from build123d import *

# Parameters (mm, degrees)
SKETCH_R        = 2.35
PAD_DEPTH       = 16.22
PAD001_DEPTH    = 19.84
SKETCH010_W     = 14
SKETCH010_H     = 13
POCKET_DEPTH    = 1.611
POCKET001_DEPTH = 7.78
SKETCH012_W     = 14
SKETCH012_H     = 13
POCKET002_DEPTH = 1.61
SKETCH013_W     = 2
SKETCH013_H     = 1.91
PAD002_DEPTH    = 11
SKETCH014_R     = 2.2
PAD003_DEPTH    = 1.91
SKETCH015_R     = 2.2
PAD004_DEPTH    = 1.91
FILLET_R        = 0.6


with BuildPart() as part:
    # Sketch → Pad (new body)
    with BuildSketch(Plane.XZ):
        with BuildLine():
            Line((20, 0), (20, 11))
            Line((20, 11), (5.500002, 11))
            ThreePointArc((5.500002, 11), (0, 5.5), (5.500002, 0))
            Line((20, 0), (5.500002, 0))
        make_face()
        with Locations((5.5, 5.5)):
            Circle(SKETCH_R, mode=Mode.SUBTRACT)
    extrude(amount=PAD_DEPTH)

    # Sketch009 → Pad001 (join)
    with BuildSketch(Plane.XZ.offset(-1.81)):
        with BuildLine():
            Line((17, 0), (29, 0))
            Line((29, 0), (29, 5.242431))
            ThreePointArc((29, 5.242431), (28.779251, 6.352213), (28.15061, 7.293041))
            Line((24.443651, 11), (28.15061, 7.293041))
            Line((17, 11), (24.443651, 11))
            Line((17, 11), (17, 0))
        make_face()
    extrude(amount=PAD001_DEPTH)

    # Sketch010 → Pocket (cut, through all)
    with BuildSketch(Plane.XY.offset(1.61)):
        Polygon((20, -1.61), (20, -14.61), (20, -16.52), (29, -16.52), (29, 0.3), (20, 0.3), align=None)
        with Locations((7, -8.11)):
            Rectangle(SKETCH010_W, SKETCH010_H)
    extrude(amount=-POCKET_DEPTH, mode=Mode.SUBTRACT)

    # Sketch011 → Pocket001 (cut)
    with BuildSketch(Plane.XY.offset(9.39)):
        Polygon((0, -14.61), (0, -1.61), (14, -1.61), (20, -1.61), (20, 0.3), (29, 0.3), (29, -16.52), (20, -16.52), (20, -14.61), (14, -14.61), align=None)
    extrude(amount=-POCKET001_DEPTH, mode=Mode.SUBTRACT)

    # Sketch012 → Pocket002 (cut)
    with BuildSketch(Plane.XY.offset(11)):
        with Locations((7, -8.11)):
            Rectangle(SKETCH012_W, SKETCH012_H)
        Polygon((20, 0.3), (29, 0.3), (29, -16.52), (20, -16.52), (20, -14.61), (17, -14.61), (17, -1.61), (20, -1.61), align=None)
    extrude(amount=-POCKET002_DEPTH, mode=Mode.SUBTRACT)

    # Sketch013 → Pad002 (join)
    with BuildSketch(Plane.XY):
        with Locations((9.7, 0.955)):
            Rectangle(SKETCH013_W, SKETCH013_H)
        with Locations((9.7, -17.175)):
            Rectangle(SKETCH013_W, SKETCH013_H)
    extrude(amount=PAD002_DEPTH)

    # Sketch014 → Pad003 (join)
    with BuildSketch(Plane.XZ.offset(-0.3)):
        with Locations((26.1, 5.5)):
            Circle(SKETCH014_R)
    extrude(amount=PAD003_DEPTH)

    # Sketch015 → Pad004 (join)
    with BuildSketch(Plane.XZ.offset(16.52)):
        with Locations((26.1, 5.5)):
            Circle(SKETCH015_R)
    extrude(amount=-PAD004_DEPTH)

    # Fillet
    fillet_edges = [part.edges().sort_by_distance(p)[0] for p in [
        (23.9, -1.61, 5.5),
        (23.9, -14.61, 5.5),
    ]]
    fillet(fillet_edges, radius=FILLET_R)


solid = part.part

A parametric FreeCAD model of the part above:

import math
import FreeCAD as App
import Part
import Sketcher

V = App.Vector
Q = App.Units.Quantity


def edges_at(feature, points):
    """Names of the edges that pass closest to the given points."""
    edges = feature.Shape.Edges
    near = lambda p: min(range(len(edges)), key=lambda i: edges[i].distToShape(Part.Vertex(*p))[0])
    return sorted({f"Edge{near(p) + 1}" for p in points})

doc = App.newDocument("Part")
body = doc.addObject("PartDesign::Body", "Body")

# Sketch on XZ plane
sketch1 = body.newObject("Sketcher::SketchObject", "Sketch")
sketch1.AttachmentSupport = (doc.getObject("XZ_Plane"), [""])
sketch1.MapMode = "FlatFace"
sketch1.addGeometry([
    Part.LineSegment(V(20, 0, 0), V(20, 11, 0)),  # 0
    Part.LineSegment(V(20, 11, 0), V(5.500002, 11, 0)),  # 1
    Part.ArcOfCircle(Part.Circle(V(5.5, 5.5, 0), V(0, 0, 1), 5.5), math.radians(89.999979), math.radians(270.000021)),  # 2
    Part.LineSegment(V(5.500002, 0, 0), V(20, 0, 0)),  # 3
    Part.Circle(V(5.5, 5.5, 0), V(0, 0, 1), 2.35),  # 4
], False)
sketch1.addConstraint([
    Sketcher.Constraint("Coincident", 0, 2, 1, 1),
    Sketcher.Constraint("Tangent", 1, 2, 2, 1),
    Sketcher.Constraint("Tangent", 2, 2, 3, 1),
    Sketcher.Constraint("Coincident", 3, 2, 0, 1),
    Sketcher.Constraint("Vertical", 0),
    Sketcher.Constraint("Horizontal", 1),
    Sketcher.Constraint("Horizontal", 3),
    Sketcher.Constraint("Coincident", 4, 3, 2, 3),
    Sketcher.Constraint("PointOnObject", 2, 2, -1),
    Sketcher.Constraint("Diameter", 4, 4.7),
    Sketcher.Constraint("Radius", 2, 5.5),
    Sketcher.Constraint("DistanceX", -1, 1, 0, 2, 20.0),
    Sketcher.Constraint("DistanceX", -1, 1, 2, 3, 5.5),
])
pad1 = body.newObject("PartDesign::Pad", "Pad")
pad1.Profile = sketch1
pad1.Length = 16.22

# Sketch on XZ plane
sketch2 = body.newObject("Sketcher::SketchObject", "Sketch001")
sketch2.AttachmentSupport = (doc.getObject("XZ_Plane"), [""])
sketch2.MapMode = "FlatFace"
sketch2.AttachmentOffset = App.Placement(V(0, 0, -1.81), App.Rotation())
sketch2.addGeometry([
    Part.LineSegment(V(17, 0, 0), V(29, 0, 0)),  # 0
    Part.LineSegment(V(29, 0, 0), V(29, 5.242431, 0)),  # 1
    Part.ArcOfCircle(Part.Circle(V(26.100001, 5.242432, 0), V(0, 0, 1), 2.899999), math.radians(-0.000022), math.radians(45)),  # 2
    Part.LineSegment(V(28.15061, 7.293041, 0), V(24.443651, 11, 0)),  # 3
    Part.LineSegment(V(24.443651, 11, 0), V(17, 11, 0)),  # 4
    Part.LineSegment(V(17, 11, 0), V(17, 0, 0)),  # 5
], False)
sketch2.addConstraint([
    Sketcher.Constraint("Coincident", 0, 2, 1, 1),
    Sketcher.Constraint("Tangent", 1, 2, 2, 1),
    Sketcher.Constraint("Tangent", 2, 2, 3, 1),
    Sketcher.Constraint("Coincident", 3, 2, 4, 1),
    Sketcher.Constraint("Coincident", 4, 2, 5, 1),
    Sketcher.Constraint("Coincident", 5, 2, 0, 1),
    Sketcher.Constraint("Horizontal", 0),
    Sketcher.Constraint("Vertical", 1),
    Sketcher.Constraint("Horizontal", 4),
    Sketcher.Constraint("Vertical", 5),
    Sketcher.Constraint("PointOnObject", 0, 2, -1),
    Sketcher.Constraint("Radius", 2, 2.899999),
    Sketcher.Constraint("DistanceX", 0, 1, 0, 2, 12.0),
    Sketcher.Constraint("DistanceY", 5, 2, 5, 1, 11.0),
    Sketcher.Constraint("Angle", 3, Q("135 deg")),
    Sketcher.Constraint("DistanceX", -1, 1, 0, 2, 29.0),
    Sketcher.Constraint("DistanceX", 4, 2, 4, 1, 7.443651),
])
pad2 = body.newObject("PartDesign::Pad", "Pad001")
pad2.Profile = sketch2
pad2.Length = 19.84

# Sketch on XY plane
sketch3 = body.newObject("Sketcher::SketchObject", "Sketch002")
sketch3.AttachmentSupport = (doc.getObject("XY_Plane"), [""])
sketch3.MapMode = "FlatFace"
sketch3.AttachmentOffset = App.Placement(V(0, 0, 1.61), App.Rotation())
sketch3.addGeometry([
    Part.LineSegment(V(20, -16.52, 0), V(29, -16.52, 0)),  # 0
    Part.LineSegment(V(29, -16.52, 0), V(29, 0.3, 0)),  # 1
    Part.LineSegment(V(29, 0.3, 0), V(20, 0.3, 0)),  # 2
    Part.LineSegment(V(20, 0.3, 0), V(20, -16.52, 0)),  # 3
    Part.LineSegment(V(0, -1.61, 0), V(0, -14.61, 0)),  # 4
    Part.LineSegment(V(0, -14.61, 0), V(14, -14.61, 0)),  # 5
    Part.LineSegment(V(14, -14.61, 0), V(14, -1.61, 0)),  # 6
    Part.LineSegment(V(14, -1.61, 0), V(0, -1.61, 0)),  # 7
], False)
sketch3.addConstraint([
    Sketcher.Constraint("Coincident", 0, 2, 1, 1),
    Sketcher.Constraint("Coincident", 1, 2, 2, 1),
    Sketcher.Constraint("Coincident", 2, 2, 3, 1),
    Sketcher.Constraint("Coincident", 3, 2, 0, 1),
    Sketcher.Constraint("Coincident", 4, 2, 5, 1),
    Sketcher.Constraint("Coincident", 5, 2, 6, 1),
    Sketcher.Constraint("Coincident", 6, 2, 7, 1),
    Sketcher.Constraint("Coincident", 7, 2, 4, 1),
    Sketcher.Constraint("Horizontal", 0),
    Sketcher.Constraint("Vertical", 1),
    Sketcher.Constraint("Horizontal", 2),
    Sketcher.Constraint("Vertical", 3),
    Sketcher.Constraint("Vertical", 4),
    Sketcher.Constraint("Horizontal", 5),
    Sketcher.Constraint("Vertical", 6),
    Sketcher.Constraint("Horizontal", 7),
    Sketcher.Constraint("PointOnObject", 4, 2, -2),
    Sketcher.Constraint("DistanceX", 0, 1, 0, 2, 9.0),
    Sketcher.Constraint("DistanceX", 5, 1, 5, 2, 14.0),
    Sketcher.Constraint("DistanceY", 4, 2, 4, 1, 13.0),
    Sketcher.Constraint("DistanceX", -1, 1, 0, 2, 29.0),
    Sketcher.Constraint("DistanceY", 1, 1, 1, 2, 16.82),
    Sketcher.Constraint("DistanceY", -1, 1, 1, 2, 0.3),
    Sketcher.Constraint("DistanceY", 4, 2, -1, 1, 14.61),
])
pocket1 = body.newObject("PartDesign::Pocket", "Pocket")
pocket1.Profile = sketch3
pocket1.Type = "ThroughAll"

# Sketch on XY plane
sketch4 = body.newObject("Sketcher::SketchObject", "Sketch003")
sketch4.AttachmentSupport = (doc.getObject("XY_Plane"), [""])
sketch4.MapMode = "FlatFace"
sketch4.AttachmentOffset = App.Placement(V(0, 0, 9.39), App.Rotation())
sketch4.addGeometry([
    Part.LineSegment(V(0, -1.61, 0), V(0, -14.61, 0)),  # 0
    Part.LineSegment(V(0, -14.61, 0), V(20, -14.61, 0)),  # 1
    Part.LineSegment(V(20, -14.61, 0), V(20, -16.52, 0)),  # 2
    Part.LineSegment(V(20, -16.52, 0), V(29, -16.52, 0)),  # 3
    Part.LineSegment(V(29, -16.52, 0), V(29, 0.3, 0)),  # 4
    Part.LineSegment(V(29, 0.3, 0), V(20, 0.3, 0)),  # 5
    Part.LineSegment(V(20, 0.3, 0), V(20, -1.61, 0)),  # 6
    Part.LineSegment(V(20, -1.61, 0), V(0, -1.61, 0)),  # 7
], False)
sketch4.addConstraint([
    Sketcher.Constraint("Coincident", 0, 2, 1, 1),
    Sketcher.Constraint("Coincident", 1, 2, 2, 1),
    Sketcher.Constraint("Coincident", 2, 2, 3, 1),
    Sketcher.Constraint("Coincident", 3, 2, 4, 1),
    Sketcher.Constraint("Coincident", 4, 2, 5, 1),
    Sketcher.Constraint("Coincident", 5, 2, 6, 1),
    Sketcher.Constraint("Coincident", 6, 2, 7, 1),
    Sketcher.Constraint("Coincident", 7, 2, 0, 1),
    Sketcher.Constraint("Vertical", 0),
    Sketcher.Constraint("Horizontal", 1),
    Sketcher.Constraint("Vertical", 2),
    Sketcher.Constraint("Horizontal", 3),
    Sketcher.Constraint("Vertical", 4),
    Sketcher.Constraint("Horizontal", 5),
    Sketcher.Constraint("Vertical", 6),
    Sketcher.Constraint("Horizontal", 7),
    Sketcher.Constraint("PointOnObject", 0, 2, -2),
    Sketcher.Constraint("Vertical", 2, 2, 5, 2),
    Sketcher.Constraint("Equal", 2, 6),
    Sketcher.Constraint("DistanceX", 1, 1, 1, 2, 20.0),
    Sketcher.Constraint("DistanceX", 3, 1, 3, 2, 9.0),
    Sketcher.Constraint("DistanceY", 0, 2, 0, 1, 13.0),
    Sketcher.Constraint("DistanceY", 2, 2, 2, 1, 1.91),
    Sketcher.Constraint("DistanceY", -1, 1, 4, 2, 0.3),
])
pocket2 = body.newObject("PartDesign::Pocket", "Pocket001")
pocket2.Profile = sketch4
pocket2.Length = 7.78

# Sketch on XY plane
sketch5 = body.newObject("Sketcher::SketchObject", "Sketch004")
sketch5.AttachmentSupport = (doc.getObject("XY_Plane"), [""])
sketch5.MapMode = "FlatFace"
sketch5.AttachmentOffset = App.Placement(V(0, 0, 11), App.Rotation())
sketch5.addGeometry([
    Part.LineSegment(V(0, -1.61, 0), V(0, -14.61, 0)),  # 0
    Part.LineSegment(V(0, -14.61, 0), V(14, -14.61, 0)),  # 1
    Part.LineSegment(V(14, -14.61, 0), V(14, -1.61, 0)),  # 2
    Part.LineSegment(V(14, -1.61, 0), V(0, -1.61, 0)),  # 3
    Part.LineSegment(V(29, 0.3, 0), V(20, 0.3, 0)),  # 4
    Part.LineSegment(V(20, 0.3, 0), V(20, -1.61, 0)),  # 5
    Part.LineSegment(V(20, -1.61, 0), V(17, -1.61, 0)),  # 6
    Part.LineSegment(V(17, -1.61, 0), V(17, -14.61, 0)),  # 7
    Part.LineSegment(V(17, -14.61, 0), V(20, -14.61, 0)),  # 8
    Part.LineSegment(V(20, -14.61, 0), V(20, -16.52, 0)),  # 9
    Part.LineSegment(V(20, -16.52, 0), V(29, -16.52, 0)),  # 10
    Part.LineSegment(V(29, -16.52, 0), V(29, 0.3, 0)),  # 11
], False)
sketch5.addConstraint([
    Sketcher.Constraint("Coincident", 0, 2, 1, 1),
    Sketcher.Constraint("Coincident", 1, 2, 2, 1),
    Sketcher.Constraint("Coincident", 2, 2, 3, 1),
    Sketcher.Constraint("Coincident", 3, 2, 0, 1),
    Sketcher.Constraint("Coincident", 4, 2, 5, 1),
    Sketcher.Constraint("Coincident", 5, 2, 6, 1),
    Sketcher.Constraint("Coincident", 6, 2, 7, 1),
    Sketcher.Constraint("Coincident", 7, 2, 8, 1),
    Sketcher.Constraint("Coincident", 8, 2, 9, 1),
    Sketcher.Constraint("Coincident", 9, 2, 10, 1),
    Sketcher.Constraint("Coincident", 10, 2, 11, 1),
    Sketcher.Constraint("Coincident", 11, 2, 4, 1),
    Sketcher.Constraint("Vertical", 0),
    Sketcher.Constraint("Horizontal", 1),
    Sketcher.Constraint("Vertical", 2),
    Sketcher.Constraint("Horizontal", 3),
    Sketcher.Constraint("Horizontal", 4),
    Sketcher.Constraint("Vertical", 5),
    Sketcher.Constraint("Horizontal", 6),
    Sketcher.Constraint("Vertical", 7),
    Sketcher.Constraint("Horizontal", 8),
    Sketcher.Constraint("Vertical", 9),
    Sketcher.Constraint("Horizontal", 10),
    Sketcher.Constraint("Vertical", 11),
    Sketcher.Constraint("PointOnObject", 0, 2, -2),
    Sketcher.Constraint("Horizontal", 3, 2, 5, 2),
    Sketcher.Constraint("Horizontal", 1, 2, 7, 2),
    Sketcher.Constraint("Vertical", 5, 2, 8, 2),
    Sketcher.Constraint("Equal", 5, 9),
    Sketcher.Constraint("DistanceX", 1, 1, 1, 2, 14.0),
    Sketcher.Constraint("DistanceX", 4, 2, 4, 1, 9.0),
    Sketcher.Constraint("DistanceX", 6, 2, 6, 1, 3.0),
    Sketcher.Constraint("DistanceY", 0, 2, 0, 1, 13.0),
    Sketcher.Constraint("DistanceX", -1, 1, 4, 2, 20.0),
    Sketcher.Constraint("DistanceY", 5, 2, 5, 1, 1.91),
    Sketcher.Constraint("DistanceY", -1, 1, 4, 2, 0.3),
])
pocket3 = body.newObject("PartDesign::Pocket", "Pocket002")
pocket3.Profile = sketch5
pocket3.Length = 1.61

# Sketch on XY plane
sketch6 = body.newObject("Sketcher::SketchObject", "Sketch005")
sketch6.AttachmentSupport = (doc.getObject("XY_Plane"), [""])
sketch6.MapMode = "FlatFace"
sketch6.addGeometry([
    Part.LineSegment(V(8.7, 1.91, 0), V(8.7, 0, 0)),  # 0
    Part.LineSegment(V(8.7, 0, 0), V(10.7, 0, 0)),  # 1
    Part.LineSegment(V(10.7, 0, 0), V(10.7, 1.91, 0)),  # 2
    Part.LineSegment(V(10.7, 1.91, 0), V(8.7, 1.91, 0)),  # 3
    Part.LineSegment(V(8.7, -16.22, 0), V(8.7, -18.13, 0)),  # 4
    Part.LineSegment(V(8.7, -18.13, 0), V(10.7, -18.13, 0)),  # 5
    Part.LineSegment(V(10.7, -18.13, 0), V(10.7, -16.22, 0)),  # 6
    Part.LineSegment(V(10.7, -16.22, 0), V(8.7, -16.22, 0)),  # 7
], False)
sketch6.addConstraint([
    Sketcher.Constraint("Coincident", 0, 2, 1, 1),
    Sketcher.Constraint("Coincident", 1, 2, 2, 1),
    Sketcher.Constraint("Coincident", 2, 2, 3, 1),
    Sketcher.Constraint("Coincident", 3, 2, 0, 1),
    Sketcher.Constraint("Coincident", 4, 2, 5, 1),
    Sketcher.Constraint("Coincident", 5, 2, 6, 1),
    Sketcher.Constraint("Coincident", 6, 2, 7, 1),
    Sketcher.Constraint("Coincident", 7, 2, 4, 1),
    Sketcher.Constraint("Vertical", 0),
    Sketcher.Constraint("Horizontal", 1),
    Sketcher.Constraint("Vertical", 2),
    Sketcher.Constraint("Horizontal", 3),
    Sketcher.Constraint("Vertical", 4),
    Sketcher.Constraint("Horizontal", 5),
    Sketcher.Constraint("Vertical", 6),
    Sketcher.Constraint("Horizontal", 7),
    Sketcher.Constraint("PointOnObject", 0, 2, -1),
    Sketcher.Constraint("Vertical", 3, 2, 4, 2),
    Sketcher.Constraint("Vertical", 2, 2, 5, 2),
    Sketcher.Constraint("Equal", 2, 4),
    Sketcher.Constraint("DistanceX", 1, 1, 1, 2, 2.0),
    Sketcher.Constraint("DistanceY", 0, 2, 0, 1, 1.91),
    Sketcher.Constraint("DistanceX", -1, 1, 0, 2, 8.7),
    Sketcher.Constraint("DistanceY", 4, 2, -1, 1, 18.13),
])
pad3 = body.newObject("PartDesign::Pad", "Pad002")
pad3.Profile = sketch6
pad3.Length = 11

# Sketch on XZ plane
sketch7 = body.newObject("Sketcher::SketchObject", "Sketch006")
sketch7.AttachmentSupport = (doc.getObject("XZ_Plane"), [""])
sketch7.MapMode = "FlatFace"
sketch7.AttachmentOffset = App.Placement(V(0, 0, -0.3), App.Rotation())
sketch7.addGeometry(Part.Circle(V(26.1, 5.5, 0), V(0, 0, 1), 2.2), False)
sketch7.addConstraint([
    Sketcher.Constraint("Diameter", 0, 4.4),
    Sketcher.Constraint("DistanceX", -1, 1, 0, 3, 26.1),
    Sketcher.Constraint("DistanceY", -1, 1, 0, 3, 5.5),
])
pad4 = body.newObject("PartDesign::Pad", "Pad003")
pad4.Profile = sketch7
pad4.Length = 1.91

# Sketch on XZ plane
sketch8 = body.newObject("Sketcher::SketchObject", "Sketch007")
sketch8.AttachmentSupport = (doc.getObject("XZ_Plane"), [""])
sketch8.MapMode = "FlatFace"
sketch8.AttachmentOffset = App.Placement(V(0, 0, 16.52), App.Rotation())
sketch8.addGeometry(Part.Circle(V(26.1, 5.5, 0), V(0, 0, 1), 2.2), False)
sketch8.addConstraint([
    Sketcher.Constraint("Diameter", 0, 4.4),
    Sketcher.Constraint("DistanceX", -1, 1, 0, 3, 26.1),
    Sketcher.Constraint("DistanceY", -1, 1, 0, 3, 5.5),
])
pad5 = body.newObject("PartDesign::Pad", "Pad004")
pad5.Profile = sketch8
pad5.Length = 1.91
pad5.Reversed = True
doc.recompute()

fillet = body.newObject("PartDesign::Fillet", "Fillet")
fillet.Base = (pad5, edges_at(pad5, [(23.9, -1.61, 5.5), (23.9, -14.61, 5.5)]))
fillet.Radius = 0.6

doc.recompute()
